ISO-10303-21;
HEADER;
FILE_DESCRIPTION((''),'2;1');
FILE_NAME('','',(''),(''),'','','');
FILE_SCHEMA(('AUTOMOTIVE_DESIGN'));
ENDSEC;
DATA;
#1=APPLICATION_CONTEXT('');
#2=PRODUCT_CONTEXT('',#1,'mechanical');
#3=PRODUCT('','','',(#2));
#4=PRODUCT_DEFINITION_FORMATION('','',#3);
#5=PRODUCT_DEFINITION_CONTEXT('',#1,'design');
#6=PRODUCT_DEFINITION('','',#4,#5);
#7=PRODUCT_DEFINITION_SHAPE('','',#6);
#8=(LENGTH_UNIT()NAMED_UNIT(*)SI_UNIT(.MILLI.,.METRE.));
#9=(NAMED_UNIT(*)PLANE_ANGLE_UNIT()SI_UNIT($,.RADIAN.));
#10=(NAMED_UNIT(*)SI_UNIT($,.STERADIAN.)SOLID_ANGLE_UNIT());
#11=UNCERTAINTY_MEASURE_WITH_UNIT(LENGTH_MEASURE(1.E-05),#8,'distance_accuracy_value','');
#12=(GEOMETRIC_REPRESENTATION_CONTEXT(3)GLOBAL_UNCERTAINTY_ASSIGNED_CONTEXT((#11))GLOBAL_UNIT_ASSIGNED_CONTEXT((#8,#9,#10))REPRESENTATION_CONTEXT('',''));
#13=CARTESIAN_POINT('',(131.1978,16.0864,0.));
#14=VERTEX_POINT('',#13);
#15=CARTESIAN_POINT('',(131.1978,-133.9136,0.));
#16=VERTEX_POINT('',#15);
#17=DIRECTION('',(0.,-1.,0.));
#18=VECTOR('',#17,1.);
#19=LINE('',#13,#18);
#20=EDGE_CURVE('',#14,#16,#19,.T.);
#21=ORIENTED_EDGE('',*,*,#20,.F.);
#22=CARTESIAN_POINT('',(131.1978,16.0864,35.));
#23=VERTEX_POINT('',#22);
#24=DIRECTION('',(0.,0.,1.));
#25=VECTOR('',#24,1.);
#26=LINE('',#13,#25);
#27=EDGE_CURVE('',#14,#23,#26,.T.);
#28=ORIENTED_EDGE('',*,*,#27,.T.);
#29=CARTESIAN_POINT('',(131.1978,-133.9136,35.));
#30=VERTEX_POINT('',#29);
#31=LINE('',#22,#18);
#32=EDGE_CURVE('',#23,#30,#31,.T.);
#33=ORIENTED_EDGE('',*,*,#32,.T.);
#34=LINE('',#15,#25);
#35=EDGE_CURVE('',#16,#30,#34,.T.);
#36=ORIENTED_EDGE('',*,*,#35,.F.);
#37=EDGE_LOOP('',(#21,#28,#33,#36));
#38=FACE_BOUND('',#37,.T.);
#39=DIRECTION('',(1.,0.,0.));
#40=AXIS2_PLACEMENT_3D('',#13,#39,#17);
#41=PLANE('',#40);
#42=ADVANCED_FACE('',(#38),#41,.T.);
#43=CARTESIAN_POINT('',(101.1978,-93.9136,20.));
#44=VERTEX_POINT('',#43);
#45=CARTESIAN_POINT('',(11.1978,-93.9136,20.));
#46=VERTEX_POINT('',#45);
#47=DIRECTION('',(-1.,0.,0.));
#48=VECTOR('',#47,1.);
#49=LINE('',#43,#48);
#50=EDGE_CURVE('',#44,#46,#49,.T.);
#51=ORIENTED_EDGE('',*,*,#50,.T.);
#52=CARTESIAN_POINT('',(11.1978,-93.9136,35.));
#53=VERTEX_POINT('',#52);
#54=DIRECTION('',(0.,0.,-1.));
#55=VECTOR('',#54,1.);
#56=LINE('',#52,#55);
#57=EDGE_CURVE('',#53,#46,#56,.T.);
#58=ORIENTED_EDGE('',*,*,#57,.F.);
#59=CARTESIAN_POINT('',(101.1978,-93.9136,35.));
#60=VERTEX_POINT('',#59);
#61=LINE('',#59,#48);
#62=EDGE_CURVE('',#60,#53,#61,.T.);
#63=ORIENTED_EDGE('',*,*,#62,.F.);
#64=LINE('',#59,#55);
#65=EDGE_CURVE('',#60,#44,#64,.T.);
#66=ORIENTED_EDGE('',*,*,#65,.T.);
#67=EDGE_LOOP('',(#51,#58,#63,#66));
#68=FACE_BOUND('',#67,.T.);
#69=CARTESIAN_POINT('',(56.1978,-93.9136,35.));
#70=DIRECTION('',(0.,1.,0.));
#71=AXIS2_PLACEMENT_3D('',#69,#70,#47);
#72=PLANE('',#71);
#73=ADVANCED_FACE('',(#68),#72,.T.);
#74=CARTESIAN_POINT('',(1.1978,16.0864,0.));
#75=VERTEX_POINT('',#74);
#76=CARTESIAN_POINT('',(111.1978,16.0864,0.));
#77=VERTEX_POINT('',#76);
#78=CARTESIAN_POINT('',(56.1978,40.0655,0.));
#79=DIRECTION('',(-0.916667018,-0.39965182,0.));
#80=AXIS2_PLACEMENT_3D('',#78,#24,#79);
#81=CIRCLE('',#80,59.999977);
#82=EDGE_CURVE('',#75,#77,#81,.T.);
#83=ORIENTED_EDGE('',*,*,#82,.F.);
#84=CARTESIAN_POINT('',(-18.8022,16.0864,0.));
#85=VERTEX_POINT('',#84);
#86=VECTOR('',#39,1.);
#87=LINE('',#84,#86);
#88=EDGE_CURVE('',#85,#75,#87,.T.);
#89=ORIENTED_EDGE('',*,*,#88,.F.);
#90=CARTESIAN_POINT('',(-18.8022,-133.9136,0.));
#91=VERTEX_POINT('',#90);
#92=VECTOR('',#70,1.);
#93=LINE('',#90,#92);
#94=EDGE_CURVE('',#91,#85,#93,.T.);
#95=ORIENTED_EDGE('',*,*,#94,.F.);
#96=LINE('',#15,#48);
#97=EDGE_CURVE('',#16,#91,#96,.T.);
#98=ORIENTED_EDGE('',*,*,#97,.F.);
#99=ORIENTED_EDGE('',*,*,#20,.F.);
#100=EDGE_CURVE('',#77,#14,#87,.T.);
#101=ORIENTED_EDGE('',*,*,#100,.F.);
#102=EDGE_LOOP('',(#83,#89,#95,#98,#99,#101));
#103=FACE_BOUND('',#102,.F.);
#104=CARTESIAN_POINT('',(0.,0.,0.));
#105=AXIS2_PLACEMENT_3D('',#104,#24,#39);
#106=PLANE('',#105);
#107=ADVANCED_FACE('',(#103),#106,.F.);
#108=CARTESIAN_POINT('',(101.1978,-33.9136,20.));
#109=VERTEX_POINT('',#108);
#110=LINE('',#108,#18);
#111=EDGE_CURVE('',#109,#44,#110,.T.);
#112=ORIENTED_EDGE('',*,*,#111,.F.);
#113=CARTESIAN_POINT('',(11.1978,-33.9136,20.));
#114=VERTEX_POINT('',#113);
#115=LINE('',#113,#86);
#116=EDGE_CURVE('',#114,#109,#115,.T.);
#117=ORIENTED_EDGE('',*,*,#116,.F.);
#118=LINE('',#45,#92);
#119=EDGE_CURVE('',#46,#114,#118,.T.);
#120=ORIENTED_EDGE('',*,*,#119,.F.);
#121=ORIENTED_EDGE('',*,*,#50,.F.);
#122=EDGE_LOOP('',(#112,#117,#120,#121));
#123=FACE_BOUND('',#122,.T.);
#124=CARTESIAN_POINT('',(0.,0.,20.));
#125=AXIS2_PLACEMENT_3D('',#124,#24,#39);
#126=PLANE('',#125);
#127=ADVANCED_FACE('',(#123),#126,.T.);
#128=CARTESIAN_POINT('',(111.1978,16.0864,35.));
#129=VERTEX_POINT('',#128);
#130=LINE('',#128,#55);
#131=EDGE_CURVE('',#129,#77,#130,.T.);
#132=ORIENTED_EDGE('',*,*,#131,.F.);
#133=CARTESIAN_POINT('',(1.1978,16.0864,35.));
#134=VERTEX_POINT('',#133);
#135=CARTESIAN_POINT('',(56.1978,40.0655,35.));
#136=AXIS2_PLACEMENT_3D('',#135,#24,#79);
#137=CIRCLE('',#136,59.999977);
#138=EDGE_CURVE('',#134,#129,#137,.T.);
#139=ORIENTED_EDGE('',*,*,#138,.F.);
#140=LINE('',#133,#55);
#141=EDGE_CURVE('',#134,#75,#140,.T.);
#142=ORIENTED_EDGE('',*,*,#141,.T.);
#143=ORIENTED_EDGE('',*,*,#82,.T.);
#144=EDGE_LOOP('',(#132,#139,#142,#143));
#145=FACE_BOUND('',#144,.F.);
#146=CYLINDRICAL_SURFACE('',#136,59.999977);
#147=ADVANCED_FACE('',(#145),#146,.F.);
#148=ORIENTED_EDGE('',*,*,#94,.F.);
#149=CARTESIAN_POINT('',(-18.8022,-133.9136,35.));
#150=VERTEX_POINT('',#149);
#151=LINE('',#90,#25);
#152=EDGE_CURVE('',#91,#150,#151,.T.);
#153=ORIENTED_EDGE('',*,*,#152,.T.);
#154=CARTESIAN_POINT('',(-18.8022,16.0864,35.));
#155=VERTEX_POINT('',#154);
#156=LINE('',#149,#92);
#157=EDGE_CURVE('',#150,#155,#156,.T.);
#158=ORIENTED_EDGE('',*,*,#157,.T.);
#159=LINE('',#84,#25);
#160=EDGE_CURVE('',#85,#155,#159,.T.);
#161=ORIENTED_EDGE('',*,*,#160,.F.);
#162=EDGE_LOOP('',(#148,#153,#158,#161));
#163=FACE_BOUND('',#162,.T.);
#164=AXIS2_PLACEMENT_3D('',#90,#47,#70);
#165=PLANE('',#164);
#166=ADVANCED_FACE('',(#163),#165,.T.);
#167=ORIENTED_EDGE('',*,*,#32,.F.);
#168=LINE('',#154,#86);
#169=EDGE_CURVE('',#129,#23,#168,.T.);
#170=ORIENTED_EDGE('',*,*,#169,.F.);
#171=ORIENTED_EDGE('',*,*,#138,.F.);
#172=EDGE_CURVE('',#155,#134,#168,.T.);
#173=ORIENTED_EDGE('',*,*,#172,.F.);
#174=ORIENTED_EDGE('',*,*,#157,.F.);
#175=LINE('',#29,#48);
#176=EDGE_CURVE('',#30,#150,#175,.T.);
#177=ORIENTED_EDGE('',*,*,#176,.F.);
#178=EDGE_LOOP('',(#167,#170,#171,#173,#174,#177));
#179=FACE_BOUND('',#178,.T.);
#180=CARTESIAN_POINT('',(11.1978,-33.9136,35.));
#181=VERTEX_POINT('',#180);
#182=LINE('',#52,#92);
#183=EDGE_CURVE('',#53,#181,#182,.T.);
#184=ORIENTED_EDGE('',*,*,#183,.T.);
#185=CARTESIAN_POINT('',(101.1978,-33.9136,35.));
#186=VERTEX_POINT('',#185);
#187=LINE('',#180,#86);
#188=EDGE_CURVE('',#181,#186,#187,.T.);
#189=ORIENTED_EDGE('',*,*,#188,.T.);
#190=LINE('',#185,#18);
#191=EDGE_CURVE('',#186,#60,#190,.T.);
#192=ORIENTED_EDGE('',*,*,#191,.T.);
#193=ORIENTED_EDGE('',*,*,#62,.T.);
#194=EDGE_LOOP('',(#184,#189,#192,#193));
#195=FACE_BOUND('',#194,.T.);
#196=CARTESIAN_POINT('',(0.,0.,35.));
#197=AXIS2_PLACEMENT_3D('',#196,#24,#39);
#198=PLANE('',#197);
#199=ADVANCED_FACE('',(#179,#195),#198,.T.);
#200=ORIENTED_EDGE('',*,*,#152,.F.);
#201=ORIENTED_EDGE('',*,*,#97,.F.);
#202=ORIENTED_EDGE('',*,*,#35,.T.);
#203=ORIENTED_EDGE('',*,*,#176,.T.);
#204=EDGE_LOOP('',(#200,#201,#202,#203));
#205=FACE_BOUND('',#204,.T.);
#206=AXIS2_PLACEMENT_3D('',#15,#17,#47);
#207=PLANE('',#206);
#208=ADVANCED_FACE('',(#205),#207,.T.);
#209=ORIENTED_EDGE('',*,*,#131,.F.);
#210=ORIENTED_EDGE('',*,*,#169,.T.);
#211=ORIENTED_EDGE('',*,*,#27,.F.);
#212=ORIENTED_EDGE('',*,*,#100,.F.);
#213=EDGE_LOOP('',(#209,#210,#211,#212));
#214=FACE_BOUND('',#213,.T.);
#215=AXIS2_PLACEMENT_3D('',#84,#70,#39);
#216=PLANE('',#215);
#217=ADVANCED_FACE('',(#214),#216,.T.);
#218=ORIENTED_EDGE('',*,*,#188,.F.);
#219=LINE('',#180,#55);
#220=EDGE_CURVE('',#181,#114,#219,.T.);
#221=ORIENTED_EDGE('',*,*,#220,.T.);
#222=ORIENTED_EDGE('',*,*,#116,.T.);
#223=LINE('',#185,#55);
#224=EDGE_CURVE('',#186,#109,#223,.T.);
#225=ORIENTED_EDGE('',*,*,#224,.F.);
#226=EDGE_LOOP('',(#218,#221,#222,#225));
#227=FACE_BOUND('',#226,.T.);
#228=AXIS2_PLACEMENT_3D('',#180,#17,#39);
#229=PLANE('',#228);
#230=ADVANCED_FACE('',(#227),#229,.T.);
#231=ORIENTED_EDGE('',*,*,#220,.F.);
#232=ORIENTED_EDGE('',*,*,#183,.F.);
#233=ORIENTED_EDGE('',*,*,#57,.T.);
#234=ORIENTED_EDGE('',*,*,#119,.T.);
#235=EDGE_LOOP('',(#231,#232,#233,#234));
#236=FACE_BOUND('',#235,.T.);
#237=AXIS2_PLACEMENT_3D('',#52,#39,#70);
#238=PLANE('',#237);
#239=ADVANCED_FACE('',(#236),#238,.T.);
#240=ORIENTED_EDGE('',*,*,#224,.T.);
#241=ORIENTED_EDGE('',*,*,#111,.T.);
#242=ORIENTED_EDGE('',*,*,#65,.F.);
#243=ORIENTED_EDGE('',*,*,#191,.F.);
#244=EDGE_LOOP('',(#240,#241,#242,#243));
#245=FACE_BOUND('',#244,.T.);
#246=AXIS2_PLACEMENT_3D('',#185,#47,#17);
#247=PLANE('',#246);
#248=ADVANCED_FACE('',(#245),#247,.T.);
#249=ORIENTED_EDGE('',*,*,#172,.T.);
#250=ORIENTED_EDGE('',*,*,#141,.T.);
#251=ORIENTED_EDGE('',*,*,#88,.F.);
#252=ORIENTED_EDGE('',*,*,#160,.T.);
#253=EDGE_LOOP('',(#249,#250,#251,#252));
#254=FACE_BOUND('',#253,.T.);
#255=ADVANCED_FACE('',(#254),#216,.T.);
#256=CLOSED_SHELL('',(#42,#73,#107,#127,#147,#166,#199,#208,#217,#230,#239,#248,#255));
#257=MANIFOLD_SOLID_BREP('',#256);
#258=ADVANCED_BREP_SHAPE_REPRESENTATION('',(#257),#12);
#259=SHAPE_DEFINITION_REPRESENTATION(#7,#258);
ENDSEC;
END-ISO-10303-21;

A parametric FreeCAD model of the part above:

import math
import FreeCAD as App
import Part
import Sketcher
Q = App.Units.Quantity


def add_polygon(sketch, points):
    """Adds a closed chain of lines whose ends are joined by coincident constraints."""
    first, n = sketch.GeometryCount, len(points)
    for a, b in zip(points, points[1:] + points[:1]):
        sketch.addGeometry(Part.LineSegment(App.Vector(*a, 0), App.Vector(*b, 0)), False)
    for i in range(n):
        sketch.addConstraint(Sketcher.Constraint("Coincident", first + i, 2, first + (i + 1) % n, 1))

doc = App.newDocument("Part")
body = doc.addObject("PartDesign::Body", "Body")

# Sketch on XY plane
sketch1 = doc.addObject("Sketcher::SketchObject", "Sketch")
body.addObject(sketch1)
sketch1.AttachmentSupport = (doc.XY_Plane, [""])
sketch1.MapMode = "FlatFace"
add_polygon(sketch1, [(131, 16), (-19, 16), (-19, -134), (131, -134)])  # lines 0-3
sketch1.addConstraint(Sketcher.Constraint("Horizontal", 0))
sketch1.addConstraint(Sketcher.Constraint("Vertical", 1))
sketch1.addConstraint(Sketcher.Constraint("Horizontal", 2))
sketch1.addConstraint(Sketcher.Constraint("Vertical", 3))
sketch1.addConstraint(Sketcher.Constraint("Equal", 2, 1))
sketch1.addConstraint(Sketcher.Constraint("DistanceX", 0, 2, 0, 1, Q("150 mm")))
sketch1.addConstraint(Sketcher.Constraint("DistanceX", 0, 2, -1, 1, Q("18.8022 mm")))
sketch1.addConstraint(Sketcher.Constraint("DistanceY", -1, 1, 0, 2, Q("16.0864 mm")))
pad1 = doc.addObject("PartDesign::Pad", "Pad")
body.addObject(pad1)
pad1.Profile = sketch1
pad1.Length = 35

# Sketch on XY plane
sketch2 = doc.addObject("Sketcher::SketchObject", "Sketch001")
body.addObject(sketch2)
sketch2.AttachmentSupport = (doc.XY_Plane, [""])
sketch2.MapMode = "FlatFace"
sketch2.AttachmentOffset = App.Placement(App.Vector(0, 0, 35), App.Rotation())
sketch2.addGeometry(Part.LineSegment(App.Vector(111, 16, 0), App.Vector(1, 16, 0)), False)
sketch2.addGeometry(Part.ArcOfCircle(Part.Circle(App.Vector(56, 40, 0), App.Vector(0, 0, 1), 60), math.radians(-156), math.radians(-24)), False)
sketch2.addConstraint(Sketcher.Constraint("Coincident", 0, 1, 1, 2))
sketch2.addConstraint(Sketcher.Constraint("Coincident", 1, 1, 0, 2))
sketch2.addConstraint(Sketcher.Constraint("Horizontal", 0))
sketch2.addConstraint(Sketcher.Constraint("Radius", 1, Q("60 mm")))
sketch2.addConstraint(Sketcher.Constraint("DistanceX", 0, 2, 0, 1, Q("110 mm")))
sketch2.addConstraint(Sketcher.Constraint("DistanceX", -1, 1, 1, 3, Q("56.1978 mm")))
sketch2.addConstraint(Sketcher.Constraint("DistanceY", -1, 1, 1, 3, Q("40.0655 mm")))
pocket1 = doc.addObject("PartDesign::Pocket", "Pocket")
body.addObject(pocket1)
pocket1.Profile = sketch2
pocket1.Length = 35

# Sketch on XY plane
sketch3 = doc.addObject("Sketcher::SketchObject", "Sketch002")
body.addObject(sketch3)
sketch3.AttachmentSupport = (doc.XY_Plane, [""])
sketch3.MapMode = "FlatFace"
sketch3.AttachmentOffset = App.Placement(App.Vector(0, 0, 35), App.Rotation())
add_polygon(sketch3, [(11, -34), (11, -94), (101, -94), (101, -34)])  # lines 0-3
sketch3.addConstraint(Sketcher.Constraint("Vertical", 0))
sketch3.addConstraint(Sketcher.Constraint("Horizontal", 1))
sketch3.addConstraint(Sketcher.Constraint("Vertical", 2))
sketch3.addConstraint(Sketcher.Constraint("Horizontal", 3))
sketch3.addConstraint(Sketcher.Constraint("DistanceX", 1, 1, 1, 2, Q("90 mm")))
sketch3.addConstraint(Sketcher.Constraint("DistanceY", 0, 2, 0, 1, Q("60 mm")))
sketch3.addConstraint(Sketcher.Constraint("DistanceX", -1, 1, 0, 2, Q("11.1978 mm")))
sketch3.addConstraint(Sketcher.Constraint("DistanceY", 0, 2, -1, 1, Q("93.9136 mm")))
pocket2 = doc.addObject("PartDesign::Pocket", "Pocket001")
body.addObject(pocket2)
pocket2.Profile = sketch3
pocket2.Length = 15

doc.recompute()
